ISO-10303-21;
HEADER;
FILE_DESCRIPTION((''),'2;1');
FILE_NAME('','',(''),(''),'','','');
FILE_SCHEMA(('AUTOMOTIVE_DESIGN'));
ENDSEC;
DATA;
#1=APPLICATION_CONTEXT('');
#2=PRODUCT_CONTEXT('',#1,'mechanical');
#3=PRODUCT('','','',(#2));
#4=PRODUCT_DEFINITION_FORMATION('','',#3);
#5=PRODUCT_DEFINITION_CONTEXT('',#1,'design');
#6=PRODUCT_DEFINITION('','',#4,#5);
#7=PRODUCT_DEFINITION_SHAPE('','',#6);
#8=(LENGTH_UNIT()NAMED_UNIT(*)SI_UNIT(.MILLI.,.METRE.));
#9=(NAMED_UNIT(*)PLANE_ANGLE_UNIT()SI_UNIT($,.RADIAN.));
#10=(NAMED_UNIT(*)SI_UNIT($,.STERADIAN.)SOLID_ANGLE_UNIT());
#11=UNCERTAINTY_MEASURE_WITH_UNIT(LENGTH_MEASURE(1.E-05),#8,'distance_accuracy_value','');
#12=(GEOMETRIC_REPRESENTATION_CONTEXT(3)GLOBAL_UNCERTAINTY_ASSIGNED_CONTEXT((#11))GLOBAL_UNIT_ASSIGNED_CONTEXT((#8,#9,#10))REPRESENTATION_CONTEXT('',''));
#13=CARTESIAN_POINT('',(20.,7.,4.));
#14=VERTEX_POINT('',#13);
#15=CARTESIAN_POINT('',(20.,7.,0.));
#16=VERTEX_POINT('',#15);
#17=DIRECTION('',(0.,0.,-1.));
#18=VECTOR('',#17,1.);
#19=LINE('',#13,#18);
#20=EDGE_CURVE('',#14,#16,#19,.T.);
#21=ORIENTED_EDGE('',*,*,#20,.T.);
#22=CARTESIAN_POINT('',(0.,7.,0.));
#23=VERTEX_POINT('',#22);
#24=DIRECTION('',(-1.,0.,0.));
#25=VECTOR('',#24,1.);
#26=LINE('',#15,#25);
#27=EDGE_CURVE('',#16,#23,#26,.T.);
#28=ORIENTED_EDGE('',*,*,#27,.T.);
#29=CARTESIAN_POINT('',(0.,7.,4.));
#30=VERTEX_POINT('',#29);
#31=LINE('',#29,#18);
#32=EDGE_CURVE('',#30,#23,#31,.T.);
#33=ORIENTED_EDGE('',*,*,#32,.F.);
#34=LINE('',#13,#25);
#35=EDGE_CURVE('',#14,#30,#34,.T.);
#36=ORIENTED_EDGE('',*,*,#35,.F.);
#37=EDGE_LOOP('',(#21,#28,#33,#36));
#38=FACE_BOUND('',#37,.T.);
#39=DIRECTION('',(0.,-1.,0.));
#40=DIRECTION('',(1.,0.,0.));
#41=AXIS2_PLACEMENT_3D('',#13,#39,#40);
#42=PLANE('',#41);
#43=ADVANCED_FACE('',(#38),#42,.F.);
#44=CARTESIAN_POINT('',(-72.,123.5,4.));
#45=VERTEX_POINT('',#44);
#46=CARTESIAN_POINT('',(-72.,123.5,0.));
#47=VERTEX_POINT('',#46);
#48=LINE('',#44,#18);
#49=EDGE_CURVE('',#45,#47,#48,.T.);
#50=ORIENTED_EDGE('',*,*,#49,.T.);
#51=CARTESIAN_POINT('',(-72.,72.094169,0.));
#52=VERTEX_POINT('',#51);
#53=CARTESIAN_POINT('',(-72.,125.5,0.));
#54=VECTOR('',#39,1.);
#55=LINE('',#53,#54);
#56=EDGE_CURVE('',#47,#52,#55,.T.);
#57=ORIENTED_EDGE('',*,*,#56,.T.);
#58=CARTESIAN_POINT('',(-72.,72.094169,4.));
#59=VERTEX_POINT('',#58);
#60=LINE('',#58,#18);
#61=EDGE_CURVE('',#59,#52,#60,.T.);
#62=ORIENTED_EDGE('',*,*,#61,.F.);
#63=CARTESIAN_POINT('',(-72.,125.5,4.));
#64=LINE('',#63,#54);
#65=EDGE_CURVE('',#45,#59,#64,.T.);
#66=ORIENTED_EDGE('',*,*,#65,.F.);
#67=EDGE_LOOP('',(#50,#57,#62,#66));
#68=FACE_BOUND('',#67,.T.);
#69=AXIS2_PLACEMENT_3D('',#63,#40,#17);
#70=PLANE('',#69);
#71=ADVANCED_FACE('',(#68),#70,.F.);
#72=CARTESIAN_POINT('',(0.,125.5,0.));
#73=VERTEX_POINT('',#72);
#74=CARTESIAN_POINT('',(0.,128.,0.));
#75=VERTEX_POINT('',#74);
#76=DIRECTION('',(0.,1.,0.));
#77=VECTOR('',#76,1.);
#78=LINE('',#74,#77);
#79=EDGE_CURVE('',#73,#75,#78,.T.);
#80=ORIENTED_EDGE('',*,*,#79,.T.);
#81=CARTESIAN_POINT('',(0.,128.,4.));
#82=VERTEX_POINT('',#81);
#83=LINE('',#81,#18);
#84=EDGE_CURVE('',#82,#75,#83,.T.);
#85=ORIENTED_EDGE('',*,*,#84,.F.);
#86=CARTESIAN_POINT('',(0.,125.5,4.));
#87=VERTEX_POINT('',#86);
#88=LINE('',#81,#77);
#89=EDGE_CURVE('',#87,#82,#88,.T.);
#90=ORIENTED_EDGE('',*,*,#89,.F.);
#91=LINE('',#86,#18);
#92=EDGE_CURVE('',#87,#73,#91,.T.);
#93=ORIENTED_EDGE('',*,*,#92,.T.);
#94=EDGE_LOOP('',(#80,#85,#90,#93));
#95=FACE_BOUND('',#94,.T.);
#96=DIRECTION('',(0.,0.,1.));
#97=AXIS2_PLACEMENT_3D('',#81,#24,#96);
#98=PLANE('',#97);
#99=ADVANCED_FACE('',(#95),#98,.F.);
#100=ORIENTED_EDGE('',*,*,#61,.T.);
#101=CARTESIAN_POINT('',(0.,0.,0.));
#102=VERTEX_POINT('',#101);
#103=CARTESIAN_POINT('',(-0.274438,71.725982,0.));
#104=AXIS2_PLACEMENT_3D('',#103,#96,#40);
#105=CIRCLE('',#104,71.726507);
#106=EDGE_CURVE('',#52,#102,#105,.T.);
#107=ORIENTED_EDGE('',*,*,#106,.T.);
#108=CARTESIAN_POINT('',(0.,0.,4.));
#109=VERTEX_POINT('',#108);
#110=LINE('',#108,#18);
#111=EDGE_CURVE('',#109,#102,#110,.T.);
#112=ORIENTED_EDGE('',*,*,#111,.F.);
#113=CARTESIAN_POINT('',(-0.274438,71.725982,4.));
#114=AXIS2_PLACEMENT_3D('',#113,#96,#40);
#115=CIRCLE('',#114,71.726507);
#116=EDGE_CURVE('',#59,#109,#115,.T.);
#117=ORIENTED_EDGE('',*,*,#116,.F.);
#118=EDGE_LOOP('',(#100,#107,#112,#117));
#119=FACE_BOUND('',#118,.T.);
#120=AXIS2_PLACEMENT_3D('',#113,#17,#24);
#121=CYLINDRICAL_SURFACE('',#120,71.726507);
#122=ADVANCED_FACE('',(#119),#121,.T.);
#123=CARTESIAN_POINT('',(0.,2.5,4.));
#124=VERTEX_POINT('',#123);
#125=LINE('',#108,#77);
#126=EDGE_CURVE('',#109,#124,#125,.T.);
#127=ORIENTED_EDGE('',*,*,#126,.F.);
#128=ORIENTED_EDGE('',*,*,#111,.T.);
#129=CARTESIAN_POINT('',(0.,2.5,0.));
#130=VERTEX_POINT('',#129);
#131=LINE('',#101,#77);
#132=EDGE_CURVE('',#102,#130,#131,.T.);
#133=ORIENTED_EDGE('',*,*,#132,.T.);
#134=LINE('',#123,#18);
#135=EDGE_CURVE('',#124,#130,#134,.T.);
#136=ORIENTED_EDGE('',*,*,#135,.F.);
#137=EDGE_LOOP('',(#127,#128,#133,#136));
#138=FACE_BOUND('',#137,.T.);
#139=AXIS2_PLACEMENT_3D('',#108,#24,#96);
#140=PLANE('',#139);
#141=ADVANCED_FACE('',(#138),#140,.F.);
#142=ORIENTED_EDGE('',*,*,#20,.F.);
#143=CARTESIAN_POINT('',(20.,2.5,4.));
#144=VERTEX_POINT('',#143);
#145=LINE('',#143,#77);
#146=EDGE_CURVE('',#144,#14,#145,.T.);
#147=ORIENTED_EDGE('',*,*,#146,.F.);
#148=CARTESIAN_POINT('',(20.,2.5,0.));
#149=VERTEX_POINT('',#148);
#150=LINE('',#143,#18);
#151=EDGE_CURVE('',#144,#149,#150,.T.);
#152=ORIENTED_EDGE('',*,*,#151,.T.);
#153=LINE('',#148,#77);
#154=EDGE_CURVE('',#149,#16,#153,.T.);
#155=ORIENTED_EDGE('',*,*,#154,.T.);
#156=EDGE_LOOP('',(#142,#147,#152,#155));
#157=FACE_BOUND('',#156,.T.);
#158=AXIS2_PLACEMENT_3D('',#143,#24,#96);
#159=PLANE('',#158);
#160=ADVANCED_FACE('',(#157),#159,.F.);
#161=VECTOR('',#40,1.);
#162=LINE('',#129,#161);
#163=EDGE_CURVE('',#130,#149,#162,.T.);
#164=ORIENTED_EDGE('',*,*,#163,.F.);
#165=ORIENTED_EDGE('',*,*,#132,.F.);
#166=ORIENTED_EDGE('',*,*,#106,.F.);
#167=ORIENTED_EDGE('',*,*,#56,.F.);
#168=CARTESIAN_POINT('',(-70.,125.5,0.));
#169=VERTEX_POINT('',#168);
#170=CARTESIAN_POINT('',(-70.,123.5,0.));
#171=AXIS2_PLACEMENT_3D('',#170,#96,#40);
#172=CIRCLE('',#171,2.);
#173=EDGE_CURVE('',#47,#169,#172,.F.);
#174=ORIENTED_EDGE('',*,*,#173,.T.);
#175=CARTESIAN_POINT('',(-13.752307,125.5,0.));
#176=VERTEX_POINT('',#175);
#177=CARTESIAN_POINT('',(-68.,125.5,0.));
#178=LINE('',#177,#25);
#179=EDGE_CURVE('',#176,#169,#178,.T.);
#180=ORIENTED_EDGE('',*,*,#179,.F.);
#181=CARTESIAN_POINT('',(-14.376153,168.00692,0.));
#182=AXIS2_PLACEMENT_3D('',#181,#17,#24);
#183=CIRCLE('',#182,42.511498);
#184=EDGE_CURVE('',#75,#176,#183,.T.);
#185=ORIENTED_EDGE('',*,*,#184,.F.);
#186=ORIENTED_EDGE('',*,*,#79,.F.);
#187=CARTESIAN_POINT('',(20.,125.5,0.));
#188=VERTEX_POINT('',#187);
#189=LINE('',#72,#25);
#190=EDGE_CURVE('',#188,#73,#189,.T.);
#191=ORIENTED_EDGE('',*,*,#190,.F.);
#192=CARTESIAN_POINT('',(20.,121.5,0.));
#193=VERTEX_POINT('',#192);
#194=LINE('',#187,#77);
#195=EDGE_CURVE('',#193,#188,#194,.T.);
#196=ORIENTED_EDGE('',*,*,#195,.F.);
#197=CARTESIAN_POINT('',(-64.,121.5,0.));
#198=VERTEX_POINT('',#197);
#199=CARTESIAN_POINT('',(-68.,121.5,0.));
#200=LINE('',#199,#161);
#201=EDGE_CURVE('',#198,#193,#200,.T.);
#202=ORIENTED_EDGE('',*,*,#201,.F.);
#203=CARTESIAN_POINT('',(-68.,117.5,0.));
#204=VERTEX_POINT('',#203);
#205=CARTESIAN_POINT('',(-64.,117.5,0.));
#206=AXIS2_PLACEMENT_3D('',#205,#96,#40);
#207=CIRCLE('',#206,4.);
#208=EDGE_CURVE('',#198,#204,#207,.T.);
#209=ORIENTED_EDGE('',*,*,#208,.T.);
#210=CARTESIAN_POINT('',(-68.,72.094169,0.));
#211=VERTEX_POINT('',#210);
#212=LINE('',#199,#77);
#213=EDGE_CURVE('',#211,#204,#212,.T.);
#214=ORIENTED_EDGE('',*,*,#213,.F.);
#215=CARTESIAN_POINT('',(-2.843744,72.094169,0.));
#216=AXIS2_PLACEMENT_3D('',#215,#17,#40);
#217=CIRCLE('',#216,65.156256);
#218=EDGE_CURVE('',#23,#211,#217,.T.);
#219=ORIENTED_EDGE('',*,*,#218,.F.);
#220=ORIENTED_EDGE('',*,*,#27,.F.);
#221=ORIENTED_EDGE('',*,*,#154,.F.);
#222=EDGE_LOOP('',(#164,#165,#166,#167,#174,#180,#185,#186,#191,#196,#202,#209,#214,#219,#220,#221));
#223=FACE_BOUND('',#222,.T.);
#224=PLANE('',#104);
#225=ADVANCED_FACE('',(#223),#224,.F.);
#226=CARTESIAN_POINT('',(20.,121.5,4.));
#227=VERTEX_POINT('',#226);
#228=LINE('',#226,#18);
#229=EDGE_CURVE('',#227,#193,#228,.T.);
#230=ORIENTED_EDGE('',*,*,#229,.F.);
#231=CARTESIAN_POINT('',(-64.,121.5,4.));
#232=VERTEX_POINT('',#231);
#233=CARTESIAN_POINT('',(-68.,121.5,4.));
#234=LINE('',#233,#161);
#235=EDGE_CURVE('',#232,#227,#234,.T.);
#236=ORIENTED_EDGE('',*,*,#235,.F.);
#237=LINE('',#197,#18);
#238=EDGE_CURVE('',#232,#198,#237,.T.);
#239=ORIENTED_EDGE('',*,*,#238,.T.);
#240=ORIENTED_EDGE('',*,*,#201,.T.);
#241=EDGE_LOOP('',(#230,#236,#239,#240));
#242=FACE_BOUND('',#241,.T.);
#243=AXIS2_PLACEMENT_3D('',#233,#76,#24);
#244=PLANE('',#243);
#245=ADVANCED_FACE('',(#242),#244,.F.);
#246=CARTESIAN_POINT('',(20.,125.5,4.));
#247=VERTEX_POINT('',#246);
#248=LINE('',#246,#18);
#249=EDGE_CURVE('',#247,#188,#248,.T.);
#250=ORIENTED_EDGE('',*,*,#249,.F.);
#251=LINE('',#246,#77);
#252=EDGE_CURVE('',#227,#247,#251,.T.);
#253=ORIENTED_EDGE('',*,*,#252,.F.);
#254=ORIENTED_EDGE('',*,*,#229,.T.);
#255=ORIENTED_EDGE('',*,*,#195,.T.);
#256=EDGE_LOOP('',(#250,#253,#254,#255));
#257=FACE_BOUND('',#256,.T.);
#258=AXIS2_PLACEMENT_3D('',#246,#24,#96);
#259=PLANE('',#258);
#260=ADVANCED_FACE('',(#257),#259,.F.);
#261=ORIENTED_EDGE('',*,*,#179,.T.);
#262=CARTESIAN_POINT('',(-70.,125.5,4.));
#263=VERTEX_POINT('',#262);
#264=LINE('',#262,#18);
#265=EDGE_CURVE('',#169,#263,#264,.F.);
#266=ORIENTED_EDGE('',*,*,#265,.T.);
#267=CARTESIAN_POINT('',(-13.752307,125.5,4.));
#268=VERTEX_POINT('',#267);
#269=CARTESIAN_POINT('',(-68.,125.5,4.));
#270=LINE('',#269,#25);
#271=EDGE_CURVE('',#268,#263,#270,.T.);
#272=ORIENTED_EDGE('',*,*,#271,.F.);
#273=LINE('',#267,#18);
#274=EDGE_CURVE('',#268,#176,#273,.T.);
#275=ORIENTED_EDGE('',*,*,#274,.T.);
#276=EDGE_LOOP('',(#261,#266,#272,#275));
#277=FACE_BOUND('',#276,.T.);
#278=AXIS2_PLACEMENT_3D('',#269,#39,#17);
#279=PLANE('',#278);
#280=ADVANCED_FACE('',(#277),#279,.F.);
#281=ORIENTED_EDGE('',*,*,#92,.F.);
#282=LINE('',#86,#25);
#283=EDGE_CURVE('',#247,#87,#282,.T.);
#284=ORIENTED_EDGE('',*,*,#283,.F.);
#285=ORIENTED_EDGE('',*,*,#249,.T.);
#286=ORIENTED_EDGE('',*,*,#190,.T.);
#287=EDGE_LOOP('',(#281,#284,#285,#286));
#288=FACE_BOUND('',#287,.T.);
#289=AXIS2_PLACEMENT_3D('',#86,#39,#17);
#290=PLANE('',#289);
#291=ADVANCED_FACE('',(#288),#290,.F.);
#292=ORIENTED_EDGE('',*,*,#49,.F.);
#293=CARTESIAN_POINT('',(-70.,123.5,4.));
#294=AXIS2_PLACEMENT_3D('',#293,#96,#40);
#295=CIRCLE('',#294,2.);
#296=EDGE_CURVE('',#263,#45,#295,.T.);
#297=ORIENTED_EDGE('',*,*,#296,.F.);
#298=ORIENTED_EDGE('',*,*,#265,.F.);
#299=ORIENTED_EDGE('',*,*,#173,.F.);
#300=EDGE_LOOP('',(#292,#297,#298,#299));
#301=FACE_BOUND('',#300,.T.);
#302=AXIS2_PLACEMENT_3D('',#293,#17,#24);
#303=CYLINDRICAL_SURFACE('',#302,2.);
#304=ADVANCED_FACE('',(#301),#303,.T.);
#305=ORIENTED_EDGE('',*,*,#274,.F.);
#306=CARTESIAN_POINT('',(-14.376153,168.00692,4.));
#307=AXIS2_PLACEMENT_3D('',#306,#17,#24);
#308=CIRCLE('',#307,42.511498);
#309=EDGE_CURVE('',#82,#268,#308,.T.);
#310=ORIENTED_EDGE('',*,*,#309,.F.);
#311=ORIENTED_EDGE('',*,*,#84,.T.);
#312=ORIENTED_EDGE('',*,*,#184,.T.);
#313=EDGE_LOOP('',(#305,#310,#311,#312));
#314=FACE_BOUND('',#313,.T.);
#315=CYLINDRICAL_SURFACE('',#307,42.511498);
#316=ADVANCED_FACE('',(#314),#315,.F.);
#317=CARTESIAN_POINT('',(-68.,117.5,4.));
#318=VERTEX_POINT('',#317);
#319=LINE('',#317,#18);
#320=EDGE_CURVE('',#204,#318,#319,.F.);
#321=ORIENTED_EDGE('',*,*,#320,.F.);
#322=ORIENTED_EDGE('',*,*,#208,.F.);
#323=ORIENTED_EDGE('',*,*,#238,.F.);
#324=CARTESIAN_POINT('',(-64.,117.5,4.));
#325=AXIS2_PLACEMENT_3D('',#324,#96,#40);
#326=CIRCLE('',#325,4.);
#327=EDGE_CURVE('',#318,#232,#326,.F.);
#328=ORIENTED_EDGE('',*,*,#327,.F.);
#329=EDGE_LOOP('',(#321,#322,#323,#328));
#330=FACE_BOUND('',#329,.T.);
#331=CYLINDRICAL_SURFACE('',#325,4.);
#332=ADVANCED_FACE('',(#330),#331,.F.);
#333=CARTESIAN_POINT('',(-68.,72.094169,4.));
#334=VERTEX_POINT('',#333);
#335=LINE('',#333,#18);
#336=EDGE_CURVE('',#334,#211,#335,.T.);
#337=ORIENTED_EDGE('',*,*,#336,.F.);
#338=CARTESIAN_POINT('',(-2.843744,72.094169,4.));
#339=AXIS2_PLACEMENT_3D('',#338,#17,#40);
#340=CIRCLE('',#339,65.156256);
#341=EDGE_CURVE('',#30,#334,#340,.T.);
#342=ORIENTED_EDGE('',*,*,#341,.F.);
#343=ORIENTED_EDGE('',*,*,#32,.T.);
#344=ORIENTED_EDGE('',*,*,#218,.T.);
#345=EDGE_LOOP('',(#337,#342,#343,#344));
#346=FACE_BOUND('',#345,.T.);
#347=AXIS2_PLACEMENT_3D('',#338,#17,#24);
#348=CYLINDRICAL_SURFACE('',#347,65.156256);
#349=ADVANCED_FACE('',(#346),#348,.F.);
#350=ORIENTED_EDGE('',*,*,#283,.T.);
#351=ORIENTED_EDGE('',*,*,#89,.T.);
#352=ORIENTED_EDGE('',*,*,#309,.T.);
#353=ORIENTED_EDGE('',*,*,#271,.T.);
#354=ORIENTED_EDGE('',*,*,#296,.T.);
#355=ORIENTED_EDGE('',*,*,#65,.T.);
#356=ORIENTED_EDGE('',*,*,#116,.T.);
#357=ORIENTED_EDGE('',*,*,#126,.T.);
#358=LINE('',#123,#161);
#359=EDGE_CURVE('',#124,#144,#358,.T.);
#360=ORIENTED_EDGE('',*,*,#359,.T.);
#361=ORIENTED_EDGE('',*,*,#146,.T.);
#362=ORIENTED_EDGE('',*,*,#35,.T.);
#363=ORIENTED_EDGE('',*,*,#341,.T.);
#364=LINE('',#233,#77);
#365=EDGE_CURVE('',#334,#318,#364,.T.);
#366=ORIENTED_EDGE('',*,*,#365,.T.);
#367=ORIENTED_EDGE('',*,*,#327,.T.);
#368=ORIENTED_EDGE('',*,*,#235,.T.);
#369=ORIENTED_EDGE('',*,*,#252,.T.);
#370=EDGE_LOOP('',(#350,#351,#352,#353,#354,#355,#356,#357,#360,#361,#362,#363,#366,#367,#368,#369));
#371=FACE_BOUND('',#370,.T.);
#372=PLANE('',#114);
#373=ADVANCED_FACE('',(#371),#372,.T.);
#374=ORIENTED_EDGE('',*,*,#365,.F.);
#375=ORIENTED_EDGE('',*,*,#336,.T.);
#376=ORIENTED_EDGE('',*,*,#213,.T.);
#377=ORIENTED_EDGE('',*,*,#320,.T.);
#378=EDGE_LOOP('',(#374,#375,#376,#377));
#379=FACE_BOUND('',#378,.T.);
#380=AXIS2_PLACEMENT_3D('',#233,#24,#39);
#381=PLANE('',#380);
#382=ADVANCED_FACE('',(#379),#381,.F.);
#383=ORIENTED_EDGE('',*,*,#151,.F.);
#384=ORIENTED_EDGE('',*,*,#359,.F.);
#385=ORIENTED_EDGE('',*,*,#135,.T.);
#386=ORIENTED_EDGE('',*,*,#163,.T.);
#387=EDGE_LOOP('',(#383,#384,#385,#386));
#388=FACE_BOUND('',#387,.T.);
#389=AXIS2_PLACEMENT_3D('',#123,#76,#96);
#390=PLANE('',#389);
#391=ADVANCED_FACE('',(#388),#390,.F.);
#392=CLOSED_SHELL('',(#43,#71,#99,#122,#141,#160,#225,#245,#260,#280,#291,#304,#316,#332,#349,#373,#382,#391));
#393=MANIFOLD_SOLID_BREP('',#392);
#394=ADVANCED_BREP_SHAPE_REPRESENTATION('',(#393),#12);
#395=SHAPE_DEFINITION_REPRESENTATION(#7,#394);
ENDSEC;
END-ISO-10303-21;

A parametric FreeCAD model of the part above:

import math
import FreeCAD as App
import Part
import Sketcher
from FreeCAD import Vector
Q = App.Units.Quantity


def edges_at(feature, points):
    """Names of the edges that pass closest to the given points."""
    edges = feature.Shape.Edges
    near = lambda p: min(range(len(edges)), key=lambda i: edges[i].distToShape(Part.Vertex(*p))[0])
    return sorted({f"Edge{near(p) + 1}" for p in points})

doc = App.newDocument("Part")
body = doc.addObject("PartDesign::Body", "Body")

# Sketch on XY plane
sketch1 = body.newObject("Sketcher::SketchObject", "Sketch")
sketch1.AttachmentSupport = (doc.getObject("XY_Plane"), [""])
sketch1.MapMode = "FlatFace"
sketch1.addGeometry(Part.LineSegment(Vector(0, 0, 0), Vector(0, 2.5, 0)), False)
sketch1.addGeometry(Part.LineSegment(Vector(0, 2.5, 0), Vector(20, 2.5, 0)), False)
sketch1.addGeometry(Part.LineSegment(Vector(20, 2.5, 0), Vector(20, 7, 0)), False)
sketch1.addGeometry(Part.LineSegment(Vector(20, 7, 0), Vector(0, 7, 0)), False)
sketch1.addGeometry(Part.ArcOfCircle(Part.Circle(Vector(-2.843744, 72.094169, 0), Vector(0, 0, 1), 65.156256), math.radians(180), math.radians(272.501468)), False)
sketch1.addGeometry(Part.LineSegment(Vector(-68, 72.094169, 0), Vector(-68, 121.5, 0)), False)
sketch1.addGeometry(Part.LineSegment(Vector(-68, 121.5, 0), Vector(20, 121.5, 0)), False)
sketch1.addGeometry(Part.LineSegment(Vector(20, 121.5, 0), Vector(20, 125.5, 0)), False)
sketch1.addGeometry(Part.LineSegment(Vector(20, 125.5, 0), Vector(0, 125.5, 0)), False)
sketch1.addGeometry(Part.LineSegment(Vector(0, 125.5, 0), Vector(0, 128, 0)), False)
sketch1.addGeometry(Part.ArcOfCircle(Part.Circle(Vector(-14.376153, 168.00692, 0), Vector(0, 0, 1), 42.511498), math.radians(-89.159167), math.radians(-70.234523)), False)
sketch1.addGeometry(Part.LineSegment(Vector(-13.752307, 125.5, 0), Vector(-72, 125.5, 0)), False)
sketch1.addGeometry(Part.LineSegment(Vector(-72, 125.5, 0), Vector(-72, 72.094169, 0)), False)
sketch1.addGeometry(Part.ArcOfCircle(Part.Circle(Vector(-0.274438, 71.725982, 0), Vector(0, 0, 1), 71.726507), math.radians(179.705888), math.radians(270.219224)), False)
sketch1.addConstraint(Sketcher.Constraint("Coincident", 0, 2, 1, 1))
sketch1.addConstraint(Sketcher.Constraint("Coincident", 1, 2, 2, 1))
sketch1.addConstraint(Sketcher.Constraint("Coincident", 2, 2, 3, 1))
sketch1.addConstraint(Sketcher.Constraint("Coincident", 3, 2, 4, 2))
sketch1.addConstraint(Sketcher.Constraint("Tangent", 4, 1, 5, 1))
sketch1.addConstraint(Sketcher.Constraint("Coincident", 5, 2, 6, 1))
sketch1.addConstraint(Sketcher.Constraint("Coincident", 6, 2, 7, 1))
sketch1.addConstraint(Sketcher.Constraint("Coincident", 7, 2, 8, 1))
sketch1.addConstraint(Sketcher.Constraint("Coincident", 8, 2, 9, 1))
sketch1.addConstraint(Sketcher.Constraint("Coincident", 9, 2, 10, 2))
sketch1.addConstraint(Sketcher.Constraint("Coincident", 10, 1, 11, 1))
sketch1.addConstraint(Sketcher.Constraint("Coincident", 11, 2, 12, 1))
sketch1.addConstraint(Sketcher.Constraint("Coincident", 12, 2, 13, 1))
sketch1.addConstraint(Sketcher.Constraint("Coincident", 13, 2, 0, 1))
sketch1.addConstraint(Sketcher.Constraint("Vertical", 0))
sketch1.addConstraint(Sketcher.Constraint("Horizontal", 1))
sketch1.addConstraint(Sketcher.Constraint("Vertical", 2))
sketch1.addConstraint(Sketcher.Constraint("Horizontal", 3))
sketch1.addConstraint(Sketcher.Constraint("Vertical", 5))
sketch1.addConstraint(Sketcher.Constraint("Horizontal", 6))
sketch1.addConstraint(Sketcher.Constraint("Vertical", 7))
sketch1.addConstraint(Sketcher.Constraint("Horizontal", 8))
sketch1.addConstraint(Sketcher.Constraint("Vertical", 9))
sketch1.addConstraint(Sketcher.Constraint("Horizontal", 11))
sketch1.addConstraint(Sketcher.Constraint("Vertical", 12))
sketch1.addConstraint(Sketcher.Constraint("Coincident", 13, 2, -1, 1))
sketch1.addConstraint(Sketcher.Constraint("PointOnObject", 3, 2, -2))
sketch1.addConstraint(Sketcher.Constraint("PointOnObject", 8, 2, -2))
sketch1.addConstraint(Sketcher.Constraint("Horizontal", 8, 2, 10, 1))
sketch1.addConstraint(Sketcher.Constraint("Horizontal", 4, 1, 12, 2))
sketch1.addConstraint(Sketcher.Constraint("Vertical", 2, 2, 6, 2))
sketch1.addConstraint(Sketcher.Constraint("Equal", 0, 9))
sketch1.addConstraint(Sketcher.Constraint("DistanceX", 1, 1, 1, 2, Q("20 mm")))
sketch1.addConstraint(Sketcher.Constraint("DistanceX", 6, 1, 6, 2, Q("88 mm")))
sketch1.addConstraint(Sketcher.Constraint("DistanceY", 7, 1, 7, 2, Q("4 mm")))
sketch1.addConstraint(Sketcher.Constraint("DistanceY", 0, 1, 0, 2, Q("2.5 mm")))
sketch1.addConstraint(Sketcher.Constraint("DistanceY", 2, 1, 2, 2, Q("4.5 mm")))
sketch1.addConstraint(Sketcher.Constraint("DistanceY", -1, 1, 9, 2, Q("128 mm")))
sketch1.addConstraint(Sketcher.Constraint("DistanceX", 11, 2, -1, 1, Q("72 mm")))
sketch1.addConstraint(Sketcher.Constraint("Radius", 10, Q("42.511498 mm")))
sketch1.addConstraint(Sketcher.Constraint("Radius", 4, Q("65.156256 mm")))
sketch1.addConstraint(Sketcher.Constraint("Radius", 13, Q("71.726507 mm")))
sketch1.addConstraint(Sketcher.Constraint("DistanceX", 11, 2, 11, 1, Q("58.247693 mm")))
pad1 = body.newObject("PartDesign::Pad", "Pad")
pad1.Profile = sketch1
pad1.Length = 4
doc.recompute()

fillet = body.newObject("PartDesign::Fillet", "Fillet")
fillet.Base = (pad1, edges_at(pad1, [(-68, 121.5, 2)]))
fillet.Radius = 4
doc.recompute()

fillet2 = body.newObject("PartDesign::Fillet", "Fillet001")
fillet2.Base = (fillet, edges_at(fillet, [(-72, 125.5, 2)]))
fillet2.Radius = 2

doc.recompute()
